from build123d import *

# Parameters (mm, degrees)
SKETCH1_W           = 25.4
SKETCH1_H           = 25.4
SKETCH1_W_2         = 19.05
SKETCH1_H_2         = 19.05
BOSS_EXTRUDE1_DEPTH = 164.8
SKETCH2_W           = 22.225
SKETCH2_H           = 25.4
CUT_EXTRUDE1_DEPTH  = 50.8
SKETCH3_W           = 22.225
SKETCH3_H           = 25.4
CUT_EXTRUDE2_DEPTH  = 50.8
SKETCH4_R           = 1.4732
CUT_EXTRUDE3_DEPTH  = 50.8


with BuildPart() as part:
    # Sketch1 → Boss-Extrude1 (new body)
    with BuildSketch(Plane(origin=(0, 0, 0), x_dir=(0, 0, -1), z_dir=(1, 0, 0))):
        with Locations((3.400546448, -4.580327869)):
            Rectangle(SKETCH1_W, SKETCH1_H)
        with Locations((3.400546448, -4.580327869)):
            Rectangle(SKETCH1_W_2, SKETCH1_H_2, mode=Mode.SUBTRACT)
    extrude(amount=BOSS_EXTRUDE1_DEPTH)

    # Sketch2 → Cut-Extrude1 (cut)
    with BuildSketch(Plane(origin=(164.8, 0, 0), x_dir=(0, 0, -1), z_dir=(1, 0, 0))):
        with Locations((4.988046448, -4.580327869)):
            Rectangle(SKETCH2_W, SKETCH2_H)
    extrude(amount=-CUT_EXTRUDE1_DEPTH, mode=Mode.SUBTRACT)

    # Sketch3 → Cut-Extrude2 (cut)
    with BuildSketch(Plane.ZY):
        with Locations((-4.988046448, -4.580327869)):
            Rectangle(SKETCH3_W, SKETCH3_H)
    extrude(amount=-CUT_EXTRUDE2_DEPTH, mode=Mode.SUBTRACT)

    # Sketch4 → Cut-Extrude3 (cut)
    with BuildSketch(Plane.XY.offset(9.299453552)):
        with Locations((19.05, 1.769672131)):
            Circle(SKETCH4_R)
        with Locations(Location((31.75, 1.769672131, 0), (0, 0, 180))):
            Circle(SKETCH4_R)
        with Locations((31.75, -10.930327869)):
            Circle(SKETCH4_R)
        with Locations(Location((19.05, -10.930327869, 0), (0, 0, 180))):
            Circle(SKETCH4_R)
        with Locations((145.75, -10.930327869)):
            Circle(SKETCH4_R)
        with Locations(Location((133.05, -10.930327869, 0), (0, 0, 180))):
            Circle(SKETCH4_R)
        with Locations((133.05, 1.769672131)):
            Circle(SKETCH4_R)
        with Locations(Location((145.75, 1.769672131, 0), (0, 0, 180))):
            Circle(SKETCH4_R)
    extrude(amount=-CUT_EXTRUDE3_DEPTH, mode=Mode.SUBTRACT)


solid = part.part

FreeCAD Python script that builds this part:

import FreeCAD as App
import Part
import Sketcher
from FreeCAD import Vector
Q = App.Units.Quantity

doc = App.newDocument("Part")
body = doc.addObject("PartDesign::Body", "Body")

sketch1 = body.newObject("Sketcher::SketchObject", "Sketch")
sketch1.AttachmentSupport = (doc.getObject("YZ_Plane"), [""])
sketch1.MapMode = "FlatFace"
sketch1.addGeometry([
    Part.LineSegment(Vector(8.119672, 9.299454, 0), Vector(-17.280328, 9.299454, 0)),
    Part.LineSegment(Vector(-17.280328, 9.299454, 0), Vector(-17.280328, -16.100546, 0)),
    Part.LineSegment(Vector(-17.280328, -16.100546, 0), Vector(8.119672, -16.100546, 0)),
    Part.LineSegment(Vector(8.119672, -16.100546, 0), Vector(8.119672, 9.299454, 0)),
    Part.LineSegment(Vector(-14.105328, -12.925546, 0), Vector(-14.105328, 6.124454, 0)),
    Part.LineSegment(Vector(-14.105328, 6.124454, 0), Vector(4.944672, 6.124454, 0)),
    Part.LineSegment(Vector(4.944672, 6.124454, 0), Vector(4.944672, -12.925546, 0)),
    Part.LineSegment(Vector(4.944672, -12.925546, 0), Vector(-14.105328, -12.925546, 0)),
], False)
sketch1.addConstraint([
    Sketcher.Constraint("Coincident", 0, 2, 1, 1),
    Sketcher.Constraint("Coincident", 1, 2, 2, 1),
    Sketcher.Constraint("Coincident", 2, 2, 3, 1),
    Sketcher.Constraint("Coincident", 3, 2, 0, 1),
    Sketcher.Constraint("Coincident", 4, 2, 5, 1),
    Sketcher.Constraint("Coincident", 5, 2, 6, 1),
    Sketcher.Constraint("Coincident", 6, 2, 7, 1),
    Sketcher.Constraint("Coincident", 7, 2, 4, 1),
    Sketcher.Constraint("Horizontal", 0),
    Sketcher.Constraint("Vertical", 1),
    Sketcher.Constraint("Horizontal", 2),
    Sketcher.Constraint("Vertical", 3),
    Sketcher.Constraint("Vertical", 4),
    Sketcher.Constraint("Horizontal", 5),
    Sketcher.Constraint("Vertical", 6),
    Sketcher.Constraint("Horizontal", 7),
    Sketcher.Constraint("Equal", 2, 1),
    Sketcher.Constraint("Equal", 7, 4),
    Sketcher.Constraint("DistanceX", 0, 2, 0, 1, Q("1 in")),
    Sketcher.Constraint("DistanceX", 5, 1, 5, 2, Q("0.75 in")),
    Sketcher.Constraint("DistanceX", 0, 2, 4, 2, Q("0.125 in")),
    Sketcher.Constraint("DistanceY", 4, 2, 0, 2, Q("0.125 in")),
    Sketcher.Constraint("DistanceX", 0, 2, -1, 1, Q("17.280328 mm")),
    Sketcher.Constraint("DistanceY", -1, 1, 0, 2, Q("9.299454 mm")),
])
pad1 = body.newObject("PartDesign::Pad", "Pad")
pad1.Profile = sketch1
pad1.Length = 164.8

sketch2 = body.newObject("Sketcher::SketchObject", "Sketch001")
sketch2.AttachmentSupport = (doc.getObject("YZ_Plane"), [""])
sketch2.MapMode = "FlatFace"
sketch2.AttachmentOffset = App.Placement(Vector(0, 0, 164.8), App.Rotation())
sketch2.addGeometry([
    Part.LineSegment(Vector(8.119672, 6.124454, 0), Vector(-17.280328, 6.124454, 0)),
    Part.LineSegment(Vector(-17.280328, 6.124454, 0), Vector(-17.280328, -16.100546, 0)),
    Part.LineSegment(Vector(-17.280328, -16.100546, 0), Vector(8.119672, -16.100546, 0)),
    Part.LineSegment(Vector(8.119672, -16.100546, 0), Vector(8.119672, 6.124454, 0)),
], False)
sketch2.addConstraint([
    Sketcher.Constraint("Coincident", 0, 2, 1, 1),
    Sketcher.Constraint("Coincident", 1, 2, 2, 1),
    Sketcher.Constraint("Coincident", 2, 2, 3, 1),
    Sketcher.Constraint("Coincident", 3, 2, 0, 1),
    Sketcher.Constraint("Horizontal", 0),
    Sketcher.Constraint("Vertical", 1),
    Sketcher.Constraint("Horizontal", 2),
    Sketcher.Constraint("Vertical", 3),
    Sketcher.Constraint("DistanceX", 0, 2, 0, 1, Q("1 in")),
    Sketcher.Constraint("DistanceY", 1, 2, 1, 1, Q("0.875 in")),
    Sketcher.Constraint("DistanceX", 0, 2, -1, 1, Q("17.280328 mm")),
    Sketcher.Constraint("DistanceY", -1, 1, 0, 2, Q("6.124454 mm")),
])
pocket1 = body.newObject("PartDesign::Pocket", "Pocket")
pocket1.Profile = sketch2
pocket1.Length = Q("2 in")

sketch3 = body.newObject("Sketcher::SketchObject", "Sketch002")
sketch3.AttachmentSupport = (doc.getObject("YZ_Plane"), [""])
sketch3.MapMode = "FlatFace"
sketch3.addGeometry([
    Part.LineSegment(Vector(8.119672, -16.100546, 0), Vector(-17.280328, -16.100546, 0)),
    Part.LineSegment(Vector(-17.280328, -16.100546, 0), Vector(-17.280328, 6.124454, 0)),
    Part.LineSegment(Vector(-17.280328, 6.124454, 0), Vector(8.119672, 6.124454, 0)),
    Part.LineSegment(Vector(8.119672, 6.124454, 0), Vector(8.119672, -16.100546, 0)),
], False)
sketch3.addConstraint([
    Sketcher.Constraint("Coincident", 0, 2, 1, 1),
    Sketcher.Constraint("Coincident", 1, 2, 2, 1),
    Sketcher.Constraint("Coincident", 2, 2, 3, 1),
    Sketcher.Constraint("Coincident", 3, 2, 0, 1),
    Sketcher.Constraint("Horizontal", 0),
    Sketcher.Constraint("Vertical", 1),
    Sketcher.Constraint("Horizontal", 2),
    Sketcher.Constraint("Vertical", 3),
    Sketcher.Constraint("DistanceX", 0, 2, 0, 1, Q("1 in")),
    Sketcher.Constraint("DistanceY", 1, 1, 1, 2, Q("0.875 in")),
    Sketcher.Constraint("DistanceX", 0, 2, -1, 1, Q("17.280328 mm")),
    Sketcher.Constraint("DistanceY", 0, 2, -1, 1, Q("16.100546 mm")),
])
pocket2 = body.newObject("PartDesign::Pocket", "Pocket001")
pocket2.Profile = sketch3
pocket2.Length = Q("2 in")
pocket2.Reversed = True

sketch4 = body.newObject("Sketcher::SketchObject", "Sketch003")
sketch4.AttachmentSupport = (doc.getObject("XY_Plane"), [""])
sketch4.MapMode = "FlatFace"
sketch4.AttachmentOffset = App.Placement(Vector(0, 0, 9.299454), App.Rotation())
sketch4.addGeometry([
    Part.Circle(Vector(19.05, 1.769672, 0), Vector(0, 0, 1), 1.4732),
    Part.Circle(Vector(31.75, 1.769672, 0), Vector(0, 0, 1), 1.4732),
    Part.Circle(Vector(31.75, -10.930328, 0), Vector(0, 0, 1), 1.4732),
    Part.Circle(Vector(19.05, -10.930328, 0), Vector(0, 0, 1), 1.4732),
    Part.Circle(Vector(145.75, -10.930328, 0), Vector(0, 0, 1), 1.4732),
    Part.Circle(Vector(133.05, -10.930328, 0), Vector(0, 0, 1), 1.4732),
    Part.Circle(Vector(133.05, 1.769672, 0), Vector(0, 0, 1), 1.4732),
    Part.Circle(Vector(145.75, 1.769672, 0), Vector(0, 0, 1), 1.4732),
], False)
sketch4.addConstraint([
    Sketcher.Constraint("Equal", 0, 1),
    Sketcher.Constraint("Equal", 1, 2),
    Sketcher.Constraint("Equal", 2, 3),
    Sketcher.Constraint("Equal", 3, 4),
    Sketcher.Constraint("Equal", 4, 5),
    Sketcher.Constraint("Equal", 5, 6),
    Sketcher.Constraint("Equal", 6, 7),
    Sketcher.Constraint("Horizontal", 0, 3, 1, 3),
    Sketcher.Constraint("Horizontal", 2, 3, 3, 3),
    Sketcher.Constraint("Horizontal", 3, 3, 4, 3),
    Sketcher.Constraint("Horizontal", 4, 3, 5, 3),
    Sketcher.Constraint("Horizontal", 1, 3, 6, 3),
    Sketcher.Constraint("Horizontal", 6, 3, 7, 3),
    Sketcher.Constraint("Vertical", 1, 3, 2, 3),
    Sketcher.Constraint("Vertical", 0, 3, 3, 3),
    Sketcher.Constraint("Vertical", 5, 3, 6, 3),
    Sketcher.Constraint("Vertical", 4, 3, 7, 3),
    Sketcher.Constraint("Diameter", 0, Q("0.116 in")),
    Sketcher.Constraint("DistanceX", 0, 3, 1, 3, Q("0.5 in")),
    Sketcher.Constraint("DistanceY", 2, 3, 1, 3, Q("0.5 in")),
    Sketcher.Constraint("DistanceX", 5, 3, 4, 3, Q("0.5 in")),
    Sketcher.Constraint("DistanceX", -1, 1, 0, 3, Q("0.75 in")),
    Sketcher.Constraint("DistanceX", -1, 1, 4, 3, Q("145.75 mm")),
    Sketcher.Constraint("DistanceY", -1, 1, 0, 3, Q("1.769672 mm")),
])
pocket3 = body.newObject("PartDesign::Pocket", "Pocket002")
pocket3.Profile = sketch4
pocket3.Length = Q("2 in")

doc.recompute()
